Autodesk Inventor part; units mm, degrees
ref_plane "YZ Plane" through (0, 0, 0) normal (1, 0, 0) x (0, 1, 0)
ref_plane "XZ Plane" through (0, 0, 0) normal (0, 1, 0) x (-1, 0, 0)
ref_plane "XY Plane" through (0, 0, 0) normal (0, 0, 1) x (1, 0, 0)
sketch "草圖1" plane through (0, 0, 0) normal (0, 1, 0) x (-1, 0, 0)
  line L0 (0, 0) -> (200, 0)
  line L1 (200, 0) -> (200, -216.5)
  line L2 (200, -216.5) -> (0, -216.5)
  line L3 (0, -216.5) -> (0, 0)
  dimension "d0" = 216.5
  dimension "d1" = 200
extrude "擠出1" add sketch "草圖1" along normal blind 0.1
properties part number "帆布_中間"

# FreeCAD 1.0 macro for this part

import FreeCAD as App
import Part
import Sketcher
from FreeCAD import Vector

doc = App.newDocument("Part")
body = doc.addObject("PartDesign::Body", "Body")

# Sketch on XZ plane
sketch1 = body.newObject("Sketcher::SketchObject", "Sketch")
sketch1.AttachmentSupport = (doc.getObject("XZ_Plane"), [""])
sketch1.MapMode = "FlatFace"
sketch1.addGeometry(Part.LineSegment(Vector(-200, 0, 0), Vector(0, 0, 0)), False)
sketch1.addGeometry(Part.LineSegment(Vector(0, 0, 0), Vector(0, -216, 0)), False)
sketch1.addGeometry(Part.LineSegment(Vector(0, -216, 0), Vector(-200, -216, 0)), False)
sketch1.addGeometry(Part.LineSegment(Vector(-200, -216, 0), Vector(-200, 0, 0)), False)
sketch1.addConstraint(Sketcher.Constraint("Coincident", 0, 2, 1, 1))
sketch1.addConstraint(Sketcher.Constraint("Coincident", 1, 2, 2, 1))
sketch1.addConstraint(Sketcher.Constraint("Coincident", 2, 2, 3, 1))
sketch1.addConstraint(Sketcher.Constraint("Coincident", 3, 2, 0, 1))
sketch1.addConstraint(Sketcher.Constraint("Horizontal", 0))
sketch1.addConstraint(Sketcher.Constraint("Vertical", 1))
sketch1.addConstraint(Sketcher.Constraint("Horizontal", 2))
sketch1.addConstraint(Sketcher.Constraint("Vertical", 3))
sketch1.addConstraint(Sketcher.Constraint("Coincident", 0, 2, -1, 1))
sketch1.addConstraint(Sketcher.Constraint("DistanceX", 0, 1, 0, 2, 200.0))
sketch1.addConstraint(Sketcher.Constraint("DistanceY", 1, 2, 1, 1, 216.5))
pad1 = body.newObject("PartDesign::Pad", "Pad")
pad1.Profile = sketch1
pad1.Length = 0.1
pad1.Reversed = True

doc.recompute()
